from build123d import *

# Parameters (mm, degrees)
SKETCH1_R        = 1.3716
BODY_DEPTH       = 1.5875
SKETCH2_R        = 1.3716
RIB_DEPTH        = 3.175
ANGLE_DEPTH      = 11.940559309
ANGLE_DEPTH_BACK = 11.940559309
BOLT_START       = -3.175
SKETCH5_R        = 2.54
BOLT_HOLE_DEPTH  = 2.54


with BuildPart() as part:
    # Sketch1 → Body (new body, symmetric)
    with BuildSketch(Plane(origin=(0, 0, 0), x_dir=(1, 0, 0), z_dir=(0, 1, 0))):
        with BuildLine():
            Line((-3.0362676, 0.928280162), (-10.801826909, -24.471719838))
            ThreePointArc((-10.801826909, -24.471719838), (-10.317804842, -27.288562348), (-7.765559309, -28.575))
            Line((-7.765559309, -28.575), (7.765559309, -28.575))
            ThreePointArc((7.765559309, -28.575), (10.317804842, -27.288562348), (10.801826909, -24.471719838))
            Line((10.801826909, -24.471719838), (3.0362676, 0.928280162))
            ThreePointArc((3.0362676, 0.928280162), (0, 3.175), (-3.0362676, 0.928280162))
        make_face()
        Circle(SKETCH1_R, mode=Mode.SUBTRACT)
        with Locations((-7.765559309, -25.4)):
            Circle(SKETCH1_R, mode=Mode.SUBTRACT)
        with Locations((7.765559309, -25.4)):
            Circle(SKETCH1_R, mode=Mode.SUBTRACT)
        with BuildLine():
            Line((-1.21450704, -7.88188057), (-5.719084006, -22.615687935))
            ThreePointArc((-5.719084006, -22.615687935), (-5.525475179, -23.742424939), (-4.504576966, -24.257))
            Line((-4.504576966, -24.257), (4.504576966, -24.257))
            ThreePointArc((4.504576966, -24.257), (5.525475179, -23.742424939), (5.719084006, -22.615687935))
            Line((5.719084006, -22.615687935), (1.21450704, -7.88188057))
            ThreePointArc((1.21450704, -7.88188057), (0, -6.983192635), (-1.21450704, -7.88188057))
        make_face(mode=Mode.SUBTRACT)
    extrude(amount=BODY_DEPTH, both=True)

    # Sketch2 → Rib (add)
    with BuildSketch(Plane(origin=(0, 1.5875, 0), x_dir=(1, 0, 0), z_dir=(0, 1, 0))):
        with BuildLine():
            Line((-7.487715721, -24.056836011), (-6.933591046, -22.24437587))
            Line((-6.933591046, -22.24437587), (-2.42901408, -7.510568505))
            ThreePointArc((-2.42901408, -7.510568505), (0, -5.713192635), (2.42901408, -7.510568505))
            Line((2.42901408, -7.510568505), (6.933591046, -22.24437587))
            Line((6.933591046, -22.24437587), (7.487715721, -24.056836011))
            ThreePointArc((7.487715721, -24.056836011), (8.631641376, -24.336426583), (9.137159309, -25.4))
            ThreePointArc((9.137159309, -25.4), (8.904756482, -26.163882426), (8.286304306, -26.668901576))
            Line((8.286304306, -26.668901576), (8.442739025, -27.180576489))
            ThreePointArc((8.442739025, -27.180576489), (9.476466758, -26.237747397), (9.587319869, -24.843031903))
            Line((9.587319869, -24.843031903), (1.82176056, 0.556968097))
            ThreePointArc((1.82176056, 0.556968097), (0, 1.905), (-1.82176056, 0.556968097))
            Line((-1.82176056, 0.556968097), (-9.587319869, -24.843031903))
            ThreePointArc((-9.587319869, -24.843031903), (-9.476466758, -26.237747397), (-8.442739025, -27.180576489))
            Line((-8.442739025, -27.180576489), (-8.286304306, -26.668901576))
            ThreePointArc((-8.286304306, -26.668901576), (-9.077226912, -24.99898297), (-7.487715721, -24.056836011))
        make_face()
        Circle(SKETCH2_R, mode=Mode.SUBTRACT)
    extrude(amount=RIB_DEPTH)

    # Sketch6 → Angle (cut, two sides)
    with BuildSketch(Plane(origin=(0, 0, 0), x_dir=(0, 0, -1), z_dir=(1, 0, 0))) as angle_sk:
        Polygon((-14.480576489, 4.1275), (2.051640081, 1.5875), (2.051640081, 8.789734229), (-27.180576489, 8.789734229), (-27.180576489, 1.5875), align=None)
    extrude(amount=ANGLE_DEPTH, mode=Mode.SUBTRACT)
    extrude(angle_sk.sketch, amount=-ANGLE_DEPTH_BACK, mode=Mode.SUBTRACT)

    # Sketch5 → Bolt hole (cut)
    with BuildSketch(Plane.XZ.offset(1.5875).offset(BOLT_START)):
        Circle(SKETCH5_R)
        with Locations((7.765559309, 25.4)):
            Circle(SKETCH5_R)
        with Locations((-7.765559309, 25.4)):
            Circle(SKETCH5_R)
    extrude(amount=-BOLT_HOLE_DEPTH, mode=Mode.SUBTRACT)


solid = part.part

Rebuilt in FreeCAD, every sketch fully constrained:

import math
import FreeCAD as App
import Part
import Sketcher
Q = App.Units.Quantity

doc = App.newDocument("Part")
body = doc.addObject("PartDesign::Body", "Body")

# Sketch on XZ plane
sketch1 = body.newObject("Sketcher::SketchObject", "Sketch")
sketch1.AttachmentSupport = (doc.getObject("XZ_Plane"), [""])
sketch1.MapMode = "FlatFace"
sketch1.addGeometry([
    Part.LineSegment(App.Vector(-3.036268, -0.92828, 0), App.Vector(-10.801827, 24.47172, 0)),  # 0
    Part.ArcOfCircle(Part.Circle(App.Vector(-7.765559, 25.4, 0), App.Vector(0, 0, 1), 3.175), math.radians(90), math.radians(197)),  # 1
    Part.LineSegment(App.Vector(-7.765559, 28.575, 0), App.Vector(7.765559, 28.575, 0)),  # 2
    Part.ArcOfCircle(Part.Circle(App.Vector(7.765559, 25.4, 0), App.Vector(0, 0, 1), 3.175), math.radians(-17), math.radians(90)),  # 3
    Part.LineSegment(App.Vector(10.801827, 24.47172, 0), App.Vector(3.036268, -0.92828, 0)),  # 4
    Part.ArcOfCircle(Part.Circle(App.Vector(0, 0, 0), App.Vector(0, 0, 1), 3.175), math.radians(-163), math.radians(-17)),  # 5
    Part.Circle(App.Vector(-7.765559, 25.4, 0), App.Vector(0, 0, 1), 1.3716),  # 6
    Part.Circle(App.Vector(7.765559, 25.4, 0), App.Vector(0, 0, 1), 1.3716),  # 7
    Part.LineSegment(App.Vector(-5.719084, 22.615688, 0), App.Vector(-1.214507, 7.881881, 0)),  # 8
    Part.ArcOfCircle(Part.Circle(App.Vector(0, 8.253193, 0), App.Vector(0, 0, 1), 1.27), math.radians(-163), math.radians(-17)),  # 9
    Part.LineSegment(App.Vector(1.214507, 7.881881, 0), App.Vector(5.719084, 22.615688, 0)),  # 10
    Part.ArcOfCircle(Part.Circle(App.Vector(4.504577, 22.987, 0), App.Vector(0, 0, 1), 1.27), math.radians(-17), math.radians(90)),  # 11
    Part.LineSegment(App.Vector(4.504577, 24.257, 0), App.Vector(-4.504577, 24.257, 0)),  # 12
    Part.ArcOfCircle(Part.Circle(App.Vector(-4.504577, 22.987, 0), App.Vector(0, 0, 1), 1.27), math.radians(90), math.radians(197)),  # 13
    Part.Circle(App.Vector(0, 0, 0), App.Vector(0, 0, 1), 1.3716),  # 14
], False)
sketch1.addConstraint([
    Sketcher.Constraint("Tangent", 0, 2, 1, 2),
    Sketcher.Constraint("Tangent", 1, 1, 2, 1),
    Sketcher.Constraint("Tangent", 2, 2, 3, 2),
    Sketcher.Constraint("Tangent", 3, 1, 4, 1),
    Sketcher.Constraint("Tangent", 4, 2, 5, 2),
    Sketcher.Constraint("Tangent", 5, 1, 0, 1),
    Sketcher.Constraint("Tangent", 8, 2, 9, 1),
    Sketcher.Constraint("Tangent", 9, 2, 10, 1),
    Sketcher.Constraint("Tangent", 10, 2, 11, 1),
    Sketcher.Constraint("Tangent", 11, 2, 12, 1),
    Sketcher.Constraint("Tangent", 12, 2, 13, 1),
    Sketcher.Constraint("Tangent", 13, 2, 8, 1),
    Sketcher.Constraint("Horizontal", 2),
    Sketcher.Constraint("Horizontal", 12),
    Sketcher.Constraint("Coincident", 5, 3, -1, 1),
    Sketcher.Constraint("Coincident", 14, 3, -1, 1),
    Sketcher.Constraint("Coincident", 6, 3, 1, 3),
    Sketcher.Constraint("Coincident", 7, 3, 3, 3),
    Sketcher.Constraint("Equal", 1, 3),
    Sketcher.Constraint("Equal", 3, 5),
    Sketcher.Constraint("Equal", 6, 7),
    Sketcher.Constraint("Equal", 9, 11),
    Sketcher.Constraint("Equal", 11, 13),
    Sketcher.Constraint("Equal", 7, 14),
    Sketcher.Constraint("Symmetric", 8, 2, 9, 2, -2),
    Sketcher.Constraint("Parallel", 0, 8),
    Sketcher.Constraint("Parallel", 4, 10),
    Sketcher.Constraint("Radius", 9, Q("0.05 in")),
    Sketcher.Constraint("Diameter", 6, Q("0.108 in")),
    Sketcher.Constraint("DistanceY", -1, 1, 1, 3, Q("1 in")),
    Sketcher.Constraint("Angle", 0, Q("107 deg")),
    Sketcher.Constraint("Radius", 1, Q("0.125 in")),
    Sketcher.Constraint("DistanceY", 13, 3, 1, 1, Q("0.22 in")),
    Sketcher.Constraint("Distance", 8, Q("15.407021 mm")),
])
pad1 = body.newObject("PartDesign::Pad", "Pad")
pad1.Profile = sketch1
pad1.Length = Q("0.125 in")
pad1.Midplane = True

# Sketch on XZ plane
sketch2 = body.newObject("Sketcher::SketchObject", "Sketch001")
sketch2.AttachmentSupport = (doc.getObject("XZ_Plane"), [""])
sketch2.MapMode = "FlatFace"
sketch2.AttachmentOffset = App.Placement(App.Vector(0, 0, -0.0625 * 25.4), App.Rotation())
sketch2.addGeometry([
    Part.LineSegment(App.Vector(-7.487716, 24.056836, 0), App.Vector(-6.933591, 22.244376, 0)),  # 0
    Part.LineSegment(App.Vector(-6.933591, 22.244376, 0), App.Vector(-2.429014, 7.510569, 0)),  # 1
    Part.ArcOfCircle(Part.Circle(App.Vector(0, 8.253193, 0), App.Vector(0, 0, 1), 2.54), math.radians(-163), math.radians(-17)),  # 2
    Part.LineSegment(App.Vector(2.429014, 7.510569, 0), App.Vector(6.933591, 22.244376, 0)),  # 3
    Part.LineSegment(App.Vector(6.933591, 22.244376, 0), App.Vector(7.487716, 24.056836, 0)),  # 4
    Part.ArcOfCircle(Part.Circle(App.Vector(7.765559, 25.4, 0), App.Vector(0, 0, 1), 1.3716), math.radians(-101.687225), math.radians(0)),  # 5
    Part.ArcOfCircle(Part.Circle(App.Vector(7.765559, 25.4, 0), App.Vector(0, 0, 1), 1.3716), math.radians(0), math.radians(67.687225)),  # 6
    Part.LineSegment(App.Vector(8.286304, 26.668902, 0), App.Vector(8.442739, 27.180576, 0)),  # 7
    Part.ArcOfCircle(Part.Circle(App.Vector(7.765559, 25.4, 0), App.Vector(0, 0, 1), 1.905), math.radians(-17), math.radians(69.177446)),  # 8
    Part.LineSegment(App.Vector(9.58732, 24.843032, 0), App.Vector(1.821761, -0.556968, 0)),  # 9
    Part.ArcOfCircle(Part.Circle(App.Vector(0, 0, 0), App.Vector(0, 0, 1), 1.905), math.radians(-163), math.radians(-17)),  # 10
    Part.LineSegment(App.Vector(-1.821761, -0.556968, 0), App.Vector(-9.58732, 24.843032, 0)),  # 11
    Part.ArcOfCircle(Part.Circle(App.Vector(-7.765559, 25.4, 0), App.Vector(0, 0, 1), 1.905), math.radians(110.822554), math.radians(197)),  # 12
    Part.LineSegment(App.Vector(-8.442739, 27.180576, 0), App.Vector(-8.286304, 26.668902, 0)),  # 13
    Part.ArcOfCircle(Part.Circle(App.Vector(-7.765559, 25.4, 0), App.Vector(0, 0, 1), 1.3716), math.radians(112.312775), math.radians(281.687225)),  # 14
    Part.Circle(App.Vector(0, 0, 0), App.Vector(0, 0, 1), 1.3716),  # 15
], False)
sketch2.addConstraint([
    Sketcher.Constraint("Coincident", 0, 2, 1, 1),
    Sketcher.Constraint("Tangent", 1, 2, 2, 1),
    Sketcher.Constraint("Tangent", 2, 2, 3, 1),
    Sketcher.Constraint("Coincident", 3, 2, 4, 1),
    Sketcher.Constraint("Coincident", 4, 2, 5, 1),
    Sketcher.Constraint("Tangent", 5, 2, 6, 1),
    Sketcher.Constraint("Coincident", 6, 2, 7, 1),
    Sketcher.Constraint("Coincident", 7, 2, 8, 2),
    Sketcher.Constraint("Tangent", 8, 1, 9, 1),
    Sketcher.Constraint("Tangent", 9, 2, 10, 2),
    Sketcher.Constraint("Tangent", 10, 1, 11, 1),
    Sketcher.Constraint("Tangent", 11, 2, 12, 2),
    Sketcher.Constraint("Coincident", 12, 1, 13, 1),
    Sketcher.Constraint("Coincident", 13, 2, 14, 1),
    Sketcher.Constraint("Coincident", 14, 2, 0, 1),
    Sketcher.Constraint("Coincident", 10, 3, -1, 1),
    Sketcher.Constraint("Coincident", 15, 3, -1, 1),
    Sketcher.Constraint("Coincident", 8, 3, 5, 3),
    Sketcher.Constraint("Coincident", 14, 3, 12, 3),
    Sketcher.Constraint("Equal", 5, 6),
    Sketcher.Constraint("Equal", 8, 10),
    Sketcher.Constraint("Equal", 10, 12),
    Sketcher.Constraint("Equal", 6, 14),
    Sketcher.Constraint("Equal", 14, 15),
    Sketcher.Constraint("Symmetric", 5, 3, 12, 3, -2),
    Sketcher.Constraint("Symmetric", 1, 2, 2, 2, -2),
    Sketcher.Constraint("Parallel", 0, 1),
    Sketcher.Constraint("Parallel", 3, 4),
    Sketcher.Constraint("Parallel", 4, 7),
    Sketcher.Constraint("Parallel", 7, 9),
    Sketcher.Constraint("Parallel", 11, 13),
    Sketcher.Constraint("Horizontal", 0, 2, 3, 2),
    Sketcher.Constraint("Horizontal", 14, 3, 5, 2),
    Sketcher.Constraint("Horizontal", 7, 2, 12, 1),
    Sketcher.Constraint("Radius", 2, Q("0.1 in")),
    Sketcher.Constraint("Diameter", 15, Q("0.108 in")),
    Sketcher.Constraint("DistanceY", -1, 1, 5, 3, Q("1 in")),
    Sketcher.Constraint("Angle", 0, Q("-73 deg")),
    Sketcher.Constraint("Radius", 8, Q("0.075 in")),
    Sketcher.Constraint("DistanceY", -1, 1, 6, 2, Q("26.668902 mm")),
    Sketcher.Constraint("DistanceY", 0, 2, 12, 1, Q("4.936201 mm")),
    Sketcher.Constraint("Distance", 1, Q("15.407021 mm")),
])
pad2 = body.newObject("PartDesign::Pad", "Pad001")
pad2.Profile = sketch2
pad2.Length = Q("0.125 in")
pad2.Reversed = True

# Sketch on YZ plane
sketch3 = body.newObject("Sketcher::SketchObject", "Sketch002")
sketch3.AttachmentSupport = (doc.getObject("YZ_Plane"), [""])
sketch3.MapMode = "FlatFace"
sketch3.addGeometry([
    Part.LineSegment(App.Vector(4.1275, 14.480576, 0), App.Vector(1.5875, -2.05164, 0)),  # 0
    Part.LineSegment(App.Vector(1.5875, -2.05164, 0), App.Vector(8.789734, -2.05164, 0)),  # 1
    Part.LineSegment(App.Vector(8.789734, -2.05164, 0), App.Vector(8.789734, 27.180576, 0)),  # 2
    Part.LineSegment(App.Vector(8.789734, 27.180576, 0), App.Vector(1.5875, 27.180576, 0)),  # 3
    Part.LineSegment(App.Vector(1.5875, 27.180576, 0), App.Vector(4.1275, 14.480576, 0)),  # 4
], False)
sketch3.addConstraint([
    Sketcher.Constraint("Coincident", 0, 2, 1, 1),
    Sketcher.Constraint("Coincident", 1, 2, 2, 1),
    Sketcher.Constraint("Coincident", 2, 2, 3, 1),
    Sketcher.Constraint("Coincident", 3, 2, 4, 1),
    Sketcher.Constraint("Coincident", 4, 2, 0, 1),
    Sketcher.Constraint("Horizontal", 1),
    Sketcher.Constraint("Vertical", 2),
    Sketcher.Constraint("Horizontal", 3),
    Sketcher.Constraint("Vertical", 0, 2, 3, 2),
    Sketcher.Constraint("DistanceX", 3, 2, 4, 2, Q("0.1 in")),
    Sketcher.Constraint("DistanceY", 4, 2, 3, 2, Q("0.5 in")),
    Sketcher.Constraint("DistanceX", -1, 1, 0, 2, Q("0.0625 in")),
    Sketcher.Constraint("Distance", 0, Q("16.726201 mm")),
    Sketcher.Constraint("DistanceX", 1, 1, 1, 2, Q("7.202234 mm")),
    Sketcher.Constraint("DistanceY", 0, 2, -1, 1, Q("2.05164 mm")),
])
pocket1 = body.newObject("PartDesign::Pocket", "Pocket")
pocket1.Profile = sketch3
pocket1.Type = "ThroughAll"
pocket1.Midplane = True

# Sketch on XZ plane
sketch4 = body.newObject("Sketcher::SketchObject", "Sketch003")
sketch4.AttachmentSupport = (doc.getObject("XZ_Plane"), [""])
sketch4.MapMode = "FlatFace"
sketch4.AttachmentOffset = App.Placement(App.Vector(0, 0, -0.0625 * 25.4), App.Rotation())
sketch4.addGeometry([
    Part.Circle(App.Vector(0, 0, 0), App.Vector(0, 0, 1), 2.54),
    Part.Circle(App.Vector(7.765559, 25.4, 0), App.Vector(0, 0, 1), 2.54),
    Part.Circle(App.Vector(-7.765559, 25.4, 0), App.Vector(0, 0, 1), 2.54),
], False)
sketch4.addConstraint([
    Sketcher.Constraint("Coincident", 0, 3, -1, 1),
    Sketcher.Constraint("Equal", 0, 1),
    Sketcher.Constraint("Equal", 1, 2),
    Sketcher.Constraint("Symmetric", 1, 3, 2, 3, -2),
    Sketcher.Constraint("Diameter", 0, Q("0.2 in")),
    Sketcher.Constraint("DistanceY", -1, 1, 1, 3, Q("1 in")),
    Sketcher.Constraint("DistanceX", -1, 1, 1, 3, Q("7.765559 mm")),
])
pocket2 = body.newObject("PartDesign::Pocket", "Pocket001")
pocket2.Profile = sketch4
pocket2.Length = Q("0.1 in")

doc.recompute()
